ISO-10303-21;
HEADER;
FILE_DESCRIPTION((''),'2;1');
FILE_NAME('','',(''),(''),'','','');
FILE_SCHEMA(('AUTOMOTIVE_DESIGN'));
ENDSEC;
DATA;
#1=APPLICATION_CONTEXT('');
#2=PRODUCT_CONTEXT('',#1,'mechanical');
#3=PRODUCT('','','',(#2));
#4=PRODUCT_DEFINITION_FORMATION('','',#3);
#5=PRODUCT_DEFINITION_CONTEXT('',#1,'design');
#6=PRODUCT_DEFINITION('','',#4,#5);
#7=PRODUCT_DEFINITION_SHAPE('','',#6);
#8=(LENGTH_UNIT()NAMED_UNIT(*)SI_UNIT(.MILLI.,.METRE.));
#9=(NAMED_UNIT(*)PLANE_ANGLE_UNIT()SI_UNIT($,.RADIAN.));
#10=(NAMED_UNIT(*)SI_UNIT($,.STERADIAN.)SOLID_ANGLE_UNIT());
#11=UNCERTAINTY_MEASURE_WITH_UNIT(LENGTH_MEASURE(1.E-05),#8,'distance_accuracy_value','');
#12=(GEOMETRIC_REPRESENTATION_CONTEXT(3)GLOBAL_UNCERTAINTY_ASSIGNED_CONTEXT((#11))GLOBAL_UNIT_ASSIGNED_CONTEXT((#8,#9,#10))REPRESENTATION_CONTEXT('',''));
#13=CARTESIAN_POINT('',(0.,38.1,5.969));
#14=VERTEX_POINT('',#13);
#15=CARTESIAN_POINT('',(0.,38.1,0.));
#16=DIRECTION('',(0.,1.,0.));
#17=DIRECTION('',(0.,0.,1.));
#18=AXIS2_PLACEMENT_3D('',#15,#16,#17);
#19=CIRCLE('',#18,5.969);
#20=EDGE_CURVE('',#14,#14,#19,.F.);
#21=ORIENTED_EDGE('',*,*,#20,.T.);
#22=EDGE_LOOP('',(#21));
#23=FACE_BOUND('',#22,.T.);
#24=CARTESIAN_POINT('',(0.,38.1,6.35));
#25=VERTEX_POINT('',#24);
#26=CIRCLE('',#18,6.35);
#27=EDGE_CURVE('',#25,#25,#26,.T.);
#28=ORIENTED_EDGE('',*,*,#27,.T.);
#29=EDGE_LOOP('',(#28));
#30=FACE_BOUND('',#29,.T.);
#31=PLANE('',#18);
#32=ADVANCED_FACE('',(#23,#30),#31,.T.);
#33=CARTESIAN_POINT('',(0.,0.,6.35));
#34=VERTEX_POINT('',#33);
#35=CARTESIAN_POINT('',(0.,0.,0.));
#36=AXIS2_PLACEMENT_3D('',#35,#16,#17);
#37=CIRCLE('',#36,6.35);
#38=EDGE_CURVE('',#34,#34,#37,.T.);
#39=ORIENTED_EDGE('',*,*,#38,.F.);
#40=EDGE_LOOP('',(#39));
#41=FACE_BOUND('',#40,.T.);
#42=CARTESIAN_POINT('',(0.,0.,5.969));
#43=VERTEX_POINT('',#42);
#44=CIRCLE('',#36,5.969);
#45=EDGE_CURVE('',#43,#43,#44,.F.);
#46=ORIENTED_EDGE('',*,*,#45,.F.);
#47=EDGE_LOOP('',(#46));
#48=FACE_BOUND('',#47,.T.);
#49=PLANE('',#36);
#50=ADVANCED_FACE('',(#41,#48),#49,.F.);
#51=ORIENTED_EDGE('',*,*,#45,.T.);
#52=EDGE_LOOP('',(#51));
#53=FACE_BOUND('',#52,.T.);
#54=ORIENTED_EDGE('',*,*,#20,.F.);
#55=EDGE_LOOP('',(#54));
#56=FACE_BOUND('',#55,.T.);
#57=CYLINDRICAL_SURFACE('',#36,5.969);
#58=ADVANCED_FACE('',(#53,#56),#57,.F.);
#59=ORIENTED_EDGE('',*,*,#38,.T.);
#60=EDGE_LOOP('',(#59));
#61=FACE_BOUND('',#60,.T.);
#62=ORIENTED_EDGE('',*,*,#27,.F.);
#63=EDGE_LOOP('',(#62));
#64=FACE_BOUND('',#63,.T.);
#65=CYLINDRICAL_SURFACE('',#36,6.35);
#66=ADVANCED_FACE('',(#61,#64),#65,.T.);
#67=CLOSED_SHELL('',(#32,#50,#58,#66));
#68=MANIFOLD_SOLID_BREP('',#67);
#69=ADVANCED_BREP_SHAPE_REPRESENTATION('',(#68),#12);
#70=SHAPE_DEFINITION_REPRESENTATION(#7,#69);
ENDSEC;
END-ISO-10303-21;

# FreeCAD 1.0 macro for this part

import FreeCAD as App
import Part
import Sketcher

V = App.Vector
Q = App.Units.Quantity

doc = App.newDocument("Part")
body = doc.addObject("PartDesign::Body", "Body")

# Sketch on XZ plane
sketch1 = doc.addObject("Sketcher::SketchObject", "Sketch")
body.addObject(sketch1)
sketch1.AttachmentSupport = (doc.XZ_Plane, [""])
sketch1.MapMode = "FlatFace"
sketch1.addGeometry([
    Part.Circle(V(0, 0, 0), V(0, 0, 1), 6),
    Part.Circle(V(0, 0, 0), V(0, 0, 1), 6),
], False)
sketch1.addConstraint([
    Sketcher.Constraint("Coincident", 0, 3, -1, 1),
    Sketcher.Constraint("Coincident", 1, 3, -1, 1),
    Sketcher.Constraint("Diameter", 0, Q("0.5 in")),
    Sketcher.Constraint("Diameter", 1, Q("0.47 in")),
])

# Sketch on XY plane
sketch2 = doc.addObject("Sketcher::SketchObject", "Sketch001")
body.addObject(sketch2)
sketch2.AttachmentSupport = (doc.XY_Plane, [""])
sketch2.MapMode = "FlatFace"
sketch2.addGeometry(Part.LineSegment(V(0, 0, 0), V(0, 38, 0)), False)
sketch2.addConstraint([
    Sketcher.Constraint("Vertical", 0),
    Sketcher.Constraint("Coincident", 0, 1, -1, 1),
    Sketcher.Constraint("DistanceY", 0, 1, 0, 2, Q("1.5 in")),
])
doc.recompute()

additivepipe = doc.addObject("PartDesign::AdditivePipe", "AdditivePipe")
body.addObject(additivepipe)
additivepipe.Profile = sketch1
additivepipe.Spine = (sketch2, ["Edge1"])

doc.recompute()
